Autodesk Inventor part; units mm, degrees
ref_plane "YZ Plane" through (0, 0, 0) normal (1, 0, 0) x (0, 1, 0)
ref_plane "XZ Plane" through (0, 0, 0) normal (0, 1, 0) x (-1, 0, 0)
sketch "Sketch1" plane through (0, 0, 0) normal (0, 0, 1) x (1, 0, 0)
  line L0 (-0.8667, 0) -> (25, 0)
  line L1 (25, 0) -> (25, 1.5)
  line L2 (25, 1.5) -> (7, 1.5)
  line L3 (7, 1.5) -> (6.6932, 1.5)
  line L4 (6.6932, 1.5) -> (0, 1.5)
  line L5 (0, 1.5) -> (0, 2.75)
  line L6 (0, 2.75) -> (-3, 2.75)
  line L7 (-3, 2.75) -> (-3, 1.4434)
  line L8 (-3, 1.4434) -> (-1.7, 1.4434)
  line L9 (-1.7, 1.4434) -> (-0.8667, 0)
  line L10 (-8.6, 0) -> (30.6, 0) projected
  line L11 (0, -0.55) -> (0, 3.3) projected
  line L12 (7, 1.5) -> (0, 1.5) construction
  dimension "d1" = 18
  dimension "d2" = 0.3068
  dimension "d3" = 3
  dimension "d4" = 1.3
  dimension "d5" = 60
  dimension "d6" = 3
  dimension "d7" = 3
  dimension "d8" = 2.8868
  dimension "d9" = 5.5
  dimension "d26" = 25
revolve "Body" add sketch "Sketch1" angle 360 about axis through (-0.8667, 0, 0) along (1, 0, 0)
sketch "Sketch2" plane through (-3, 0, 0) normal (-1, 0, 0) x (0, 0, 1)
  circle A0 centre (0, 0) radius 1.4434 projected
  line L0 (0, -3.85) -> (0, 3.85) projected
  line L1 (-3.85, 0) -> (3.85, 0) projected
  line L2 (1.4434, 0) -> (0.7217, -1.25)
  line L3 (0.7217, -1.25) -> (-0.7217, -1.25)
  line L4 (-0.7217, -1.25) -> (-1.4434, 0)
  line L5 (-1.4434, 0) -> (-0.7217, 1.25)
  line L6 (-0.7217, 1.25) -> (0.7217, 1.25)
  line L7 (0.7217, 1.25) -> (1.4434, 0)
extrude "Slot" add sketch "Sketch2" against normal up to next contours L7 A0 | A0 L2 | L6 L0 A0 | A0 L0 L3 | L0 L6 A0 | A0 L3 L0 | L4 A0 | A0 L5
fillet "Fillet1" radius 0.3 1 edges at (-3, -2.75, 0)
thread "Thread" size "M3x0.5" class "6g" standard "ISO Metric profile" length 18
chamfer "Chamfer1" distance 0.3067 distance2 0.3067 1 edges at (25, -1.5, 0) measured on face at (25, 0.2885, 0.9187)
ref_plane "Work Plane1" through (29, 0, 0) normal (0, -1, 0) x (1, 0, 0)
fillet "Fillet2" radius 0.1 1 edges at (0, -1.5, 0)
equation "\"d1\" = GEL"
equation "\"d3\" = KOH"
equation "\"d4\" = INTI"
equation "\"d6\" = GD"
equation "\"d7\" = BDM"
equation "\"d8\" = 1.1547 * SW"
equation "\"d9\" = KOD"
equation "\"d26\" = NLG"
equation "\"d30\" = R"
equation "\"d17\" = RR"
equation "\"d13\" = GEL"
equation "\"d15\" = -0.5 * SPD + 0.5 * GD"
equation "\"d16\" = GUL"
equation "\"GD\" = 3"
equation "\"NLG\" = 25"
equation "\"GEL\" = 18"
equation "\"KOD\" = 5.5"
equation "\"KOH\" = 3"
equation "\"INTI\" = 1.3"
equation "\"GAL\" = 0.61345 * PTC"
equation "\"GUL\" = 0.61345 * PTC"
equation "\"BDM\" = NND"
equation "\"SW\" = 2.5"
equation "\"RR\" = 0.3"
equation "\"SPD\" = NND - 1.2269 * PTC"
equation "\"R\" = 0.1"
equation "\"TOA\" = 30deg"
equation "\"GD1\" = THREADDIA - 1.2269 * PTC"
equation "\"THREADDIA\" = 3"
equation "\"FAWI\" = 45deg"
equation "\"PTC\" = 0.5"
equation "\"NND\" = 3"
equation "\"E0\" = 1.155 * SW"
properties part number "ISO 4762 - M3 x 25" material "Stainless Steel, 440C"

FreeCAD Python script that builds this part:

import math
import FreeCAD as App
import Part
import Sketcher

V = App.Vector
Q = App.Units.Quantity


def edges_at(feature, points):
    """Names of the edges that pass closest to the given points."""
    edges = feature.Shape.Edges
    near = lambda p: min(range(len(edges)), key=lambda i: edges[i].distToShape(Part.Vertex(*p))[0])
    return sorted({f"Edge{near(p) + 1}" for p in points})

doc = App.newDocument("Part")
body = doc.addObject("PartDesign::Body", "Body")

# Sketch on XY plane
sketch1 = body.newObject("Sketcher::SketchObject", "Sketch")
sketch1.AttachmentSupport = (doc.getObject("XY_Plane"), [""])
sketch1.MapMode = "FlatFace"
sketch1.addGeometry(Part.LineSegment(V(-1.7, 1.4434, 0), V(-0.8667, 0, 0)), False)
sketch1.addGeometry(Part.LineSegment(V(-0.8667, 0, 0), V(25, 0, 0)), False)
sketch1.addGeometry(Part.LineSegment(V(25, 0, 0), V(25, 1.5, 0)), False)
sketch1.addGeometry(Part.LineSegment(V(25, 1.5, 0), V(0, 1.5, 0)), False)
sketch1.addGeometry(Part.LineSegment(V(0, 1.5, 0), V(0, 2.75, 0)), False)
sketch1.addGeometry(Part.LineSegment(V(0, 2.75, 0), V(-3, 2.75, 0)), False)
sketch1.addGeometry(Part.LineSegment(V(-3, 2.75, 0), V(-3, 1.4434, 0)), False)
sketch1.addGeometry(Part.LineSegment(V(-3, 1.4434, 0), V(-1.7, 1.4434, 0)), False)
sketch1.addConstraint(Sketcher.Constraint("Coincident", 0, 2, 1, 1))
sketch1.addConstraint(Sketcher.Constraint("Coincident", 1, 2, 2, 1))
sketch1.addConstraint(Sketcher.Constraint("Coincident", 2, 2, 3, 1))
sketch1.addConstraint(Sketcher.Constraint("Coincident", 3, 2, 4, 1))
sketch1.addConstraint(Sketcher.Constraint("Coincident", 4, 2, 5, 1))
sketch1.addConstraint(Sketcher.Constraint("Coincident", 5, 2, 6, 1))
sketch1.addConstraint(Sketcher.Constraint("Coincident", 6, 2, 7, 1))
sketch1.addConstraint(Sketcher.Constraint("Coincident", 7, 2, 0, 1))
sketch1.addConstraint(Sketcher.Constraint("Horizontal", 1))
sketch1.addConstraint(Sketcher.Constraint("Vertical", 2))
sketch1.addConstraint(Sketcher.Constraint("Horizontal", 3))
sketch1.addConstraint(Sketcher.Constraint("Vertical", 4))
sketch1.addConstraint(Sketcher.Constraint("Horizontal", 5))
sketch1.addConstraint(Sketcher.Constraint("Vertical", 6))
sketch1.addConstraint(Sketcher.Constraint("Horizontal", 7))
sketch1.addConstraint(Sketcher.Constraint("PointOnObject", 0, 2, -1))
sketch1.addConstraint(Sketcher.Constraint("PointOnObject", 3, 2, -2))
sketch1.addConstraint(Sketcher.Constraint("DistanceX", 3, 2, 3, 1, 25.0))
sketch1.addConstraint(Sketcher.Constraint("DistanceX", 5, 2, 5, 1, 3.0))
sketch1.addConstraint(Sketcher.Constraint("DistanceX", 7, 1, 7, 2, 1.3))
sketch1.addConstraint(Sketcher.Constraint("DistanceY", 2, 1, 2, 2, 1.5))
sketch1.addConstraint(Sketcher.Constraint("DistanceY", 4, 1, 4, 2, 1.25))
sketch1.addConstraint(Sketcher.Constraint("DistanceX", 1, 1, 1, 2, 25.8667))
sketch1.addConstraint(Sketcher.Constraint("DistanceY", 6, 2, 6, 1, 1.3066))
revolution = body.newObject("PartDesign::Revolution", "Revolution")
revolution.Profile = sketch1
revolution.ReferenceAxis = (sketch1, ["H_Axis"])
revolution.Angle = 360

# Sketch on YZ plane
sketch2 = body.newObject("Sketcher::SketchObject", "Sketch001")
sketch2.AttachmentSupport = (doc.getObject("YZ_Plane"), [""])
sketch2.MapMode = "FlatFace"
sketch2.AttachmentOffset = App.Placement(V(0, 0, -3), App.Rotation())
sketch2.addGeometry(Part.LineSegment(V(1.25, 0.7217, 0), V(0, 1.4434, 0)), False)
sketch2.addGeometry(Part.ArcOfCircle(Part.Circle(V(0, 0, 0), V(0, 0, 1), 1.4434), math.radians(30.000418), math.radians(90)), False)
sketch2.addGeometry(Part.ArcOfCircle(Part.Circle(V(0, 0, 0), V(0, 0, 1), 1.4434), math.radians(90), math.radians(149.999582)), False)
sketch2.addGeometry(Part.LineSegment(V(0, 1.4434, 0), V(-1.25, 0.7217, 0)), False)
sketch2.addGeometry(Part.ArcOfCircle(Part.Circle(V(0, 0, 0), V(0, 0, 1), 1.4434), math.radians(-30.000418), math.radians(30.000418)), False)
sketch2.addGeometry(Part.LineSegment(V(1.25, 0.7217, 0), V(1.25, -0.7217, 0)), False)
sketch2.addGeometry(Part.LineSegment(V(-1.25, 0.7217, 0), V(-1.25, -0.7217, 0)), False)
sketch2.addGeometry(Part.ArcOfCircle(Part.Circle(V(0, 0, 0), V(0, 0, 1), 1.4434), math.radians(149.999582), math.radians(210.000418)), False)
sketch2.addGeometry(Part.LineSegment(V(-1.25, -0.7217, 0), V(0, -1.4434, 0)), False)
sketch2.addGeometry(Part.ArcOfCircle(Part.Circle(V(0, 0, 0), V(0, 0, 1), 1.4434), math.radians(-149.999582), math.radians(-90)), False)
sketch2.addGeometry(Part.ArcOfCircle(Part.Circle(V(0, 0, 0), V(0, 0, 1), 1.4434), math.radians(-90), math.radians(-30.000418)), False)
sketch2.addGeometry(Part.LineSegment(V(0, -1.4434, 0), V(1.25, -0.7217, 0)), False)
sketch2.addConstraint(Sketcher.Constraint("Coincident", 0, 1, 1, 1))
sketch2.addConstraint(Sketcher.Constraint("Coincident", 1, 2, 0, 2))
sketch2.addConstraint(Sketcher.Constraint("Coincident", 2, 1, 3, 1))
sketch2.addConstraint(Sketcher.Constraint("Coincident", 3, 2, 2, 2))
sketch2.addConstraint(Sketcher.Constraint("Coincident", 4, 1, 5, 2))
sketch2.addConstraint(Sketcher.Constraint("Coincident", 5, 1, 4, 2))
sketch2.addConstraint(Sketcher.Constraint("Coincident", 6, 1, 7, 1))
sketch2.addConstraint(Sketcher.Constraint("Coincident", 7, 2, 6, 2))
sketch2.addConstraint(Sketcher.Constraint("Coincident", 8, 1, 9, 1))
sketch2.addConstraint(Sketcher.Constraint("Coincident", 9, 2, 8, 2))
sketch2.addConstraint(Sketcher.Constraint("Coincident", 10, 1, 11, 1))
sketch2.addConstraint(Sketcher.Constraint("Coincident", 11, 2, 10, 2))
sketch2.addConstraint(Sketcher.Constraint("Vertical", 5))
sketch2.addConstraint(Sketcher.Constraint("Vertical", 6))
sketch2.addConstraint(Sketcher.Constraint("Coincident", 1, 3, -1, 1))
sketch2.addConstraint(Sketcher.Constraint("Coincident", 2, 3, -1, 1))
sketch2.addConstraint(Sketcher.Constraint("Coincident", 4, 3, -1, 1))
sketch2.addConstraint(Sketcher.Constraint("Coincident", 7, 3, -1, 1))
sketch2.addConstraint(Sketcher.Constraint("Coincident", 9, 3, -1, 1))
sketch2.addConstraint(Sketcher.Constraint("Coincident", 10, 3, -1, 1))
sketch2.addConstraint(Sketcher.Constraint("Coincident", 2, 1, 1, 2))
sketch2.addConstraint(Sketcher.Constraint("Coincident", 5, 1, 0, 1))
sketch2.addConstraint(Sketcher.Constraint("Coincident", 6, 1, 3, 2))
sketch2.addConstraint(Sketcher.Constraint("Coincident", 8, 1, 7, 2))
sketch2.addConstraint(Sketcher.Constraint("Coincident", 10, 1, 9, 2))
sketch2.addConstraint(Sketcher.Constraint("PointOnObject", 1, 2, -2))
sketch2.addConstraint(Sketcher.Constraint("PointOnObject", 9, 2, -2))
sketch2.addConstraint(Sketcher.Constraint("Parallel", 0, 8))
sketch2.addConstraint(Sketcher.Constraint("Parallel", 3, 11))
sketch2.addConstraint(Sketcher.Constraint("Angle", 0, Q("149.9996 deg")))
sketch2.addConstraint(Sketcher.Constraint("Radius", 1, 1.4434))
pad1 = body.newObject("PartDesign::Pad", "Pad")
pad1.Profile = sketch2
pad1.Type = "UpToFirst"
doc.recompute()

fillet = body.newObject("PartDesign::Fillet", "Fillet")
fillet.Base = (pad1, edges_at(pad1, [(-3, -2.75, 0)]))
fillet.Radius = 0.3
doc.recompute()

chamfer = body.newObject("PartDesign::Chamfer", "Chamfer")
chamfer.Base = (fillet, edges_at(fillet, [(25, -1.5, 0)]))
chamfer.ChamferType = "Two distances"
chamfer.Size = 0.3067
chamfer.Size2 = 0.3067
doc.recompute()

fillet2 = body.newObject("PartDesign::Fillet", "Fillet001")
fillet2.Base = (chamfer, edges_at(chamfer, [(0, -1.5, 0)]))
fillet2.Radius = 0.1

doc.recompute()
